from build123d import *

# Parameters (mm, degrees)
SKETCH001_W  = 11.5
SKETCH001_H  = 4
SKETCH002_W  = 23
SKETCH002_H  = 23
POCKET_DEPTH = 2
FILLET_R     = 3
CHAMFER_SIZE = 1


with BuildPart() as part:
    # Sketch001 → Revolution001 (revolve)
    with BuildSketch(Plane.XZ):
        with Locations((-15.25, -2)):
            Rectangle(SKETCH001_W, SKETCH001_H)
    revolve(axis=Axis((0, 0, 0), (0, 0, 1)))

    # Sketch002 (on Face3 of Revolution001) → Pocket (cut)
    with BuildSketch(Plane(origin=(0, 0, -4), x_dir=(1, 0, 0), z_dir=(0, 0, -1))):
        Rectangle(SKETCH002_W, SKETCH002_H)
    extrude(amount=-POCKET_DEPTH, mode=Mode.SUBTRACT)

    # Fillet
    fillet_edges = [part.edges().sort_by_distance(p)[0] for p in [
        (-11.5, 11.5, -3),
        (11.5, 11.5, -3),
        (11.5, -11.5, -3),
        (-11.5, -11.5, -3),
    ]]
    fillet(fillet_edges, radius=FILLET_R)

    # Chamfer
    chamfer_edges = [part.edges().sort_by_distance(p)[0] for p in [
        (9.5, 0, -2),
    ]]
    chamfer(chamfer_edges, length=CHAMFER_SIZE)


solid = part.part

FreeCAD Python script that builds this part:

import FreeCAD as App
import Part
import Sketcher
Q = App.Units.Quantity


def edges_at(feature, points):
    """Names of the edges that pass closest to the given points."""
    edges = feature.Shape.Edges
    near = lambda p: min(range(len(edges)), key=lambda i: edges[i].distToShape(Part.Vertex(*p))[0])
    return sorted({f"Edge{near(p) + 1}" for p in points})

doc = App.newDocument("Part")
body = doc.addObject("PartDesign::Body", "Body")

# Sketch on XZ plane
sketch1 = body.newObject("Sketcher::SketchObject", "Sketch")
sketch1.AttachmentSupport = (doc.getObject("XZ_Plane"), [""])
sketch1.MapMode = "FlatFace"
sketch1.addGeometry([
    Part.LineSegment(App.Vector(-21, 0, 0), App.Vector(-21, -4, 0)),
    Part.LineSegment(App.Vector(-21, -4, 0), App.Vector(-9.5, -4, 0)),
    Part.LineSegment(App.Vector(-9.5, -4, 0), App.Vector(-9.5, 0, 0)),
    Part.LineSegment(App.Vector(-9.5, 0, 0), App.Vector(-21, 0, 0)),
], False)
sketch1.addConstraint([
    Sketcher.Constraint("Coincident", 0, 2, 1, 1),
    Sketcher.Constraint("Coincident", 1, 2, 2, 1),
    Sketcher.Constraint("Coincident", 2, 2, 3, 1),
    Sketcher.Constraint("Coincident", 3, 2, 0, 1),
    Sketcher.Constraint("Vertical", 0),
    Sketcher.Constraint("Horizontal", 1),
    Sketcher.Constraint("Vertical", 2),
    Sketcher.Constraint("Horizontal", 3),
    Sketcher.Constraint("PointOnObject", 2, 2, -1),
    Sketcher.Constraint("DistanceY", 0, 2, 0, 1, Q("4 mm")),
    Sketcher.Constraint("DistanceX", 1, 1, 1, 2, Q("11.5 mm")),
    Sketcher.Constraint("DistanceX", 0, 2, -1, 1, Q("21 mm")),
])
revolution = body.newObject("PartDesign::Revolution", "Revolution")
revolution.Profile = sketch1
revolution.ReferenceAxis = (sketch1, ["V_Axis"])
revolution.Angle = 360

# Sketch on XY plane
sketch2 = body.newObject("Sketcher::SketchObject", "Sketch001")
sketch2.AttachmentSupport = (doc.getObject("XY_Plane"), [""])
sketch2.MapMode = "FlatFace"
sketch2.AttachmentOffset = App.Placement(App.Vector(0, 0, -4), App.Rotation())
sketch2.addGeometry([
    Part.LineSegment(App.Vector(-12, -12, 0), App.Vector(-12, 12, 0)),
    Part.LineSegment(App.Vector(-12, 12, 0), App.Vector(12, 12, 0)),
    Part.LineSegment(App.Vector(12, 12, 0), App.Vector(12, -12, 0)),
    Part.LineSegment(App.Vector(12, -12, 0), App.Vector(-12, -12, 0)),
], False)
sketch2.addConstraint([
    Sketcher.Constraint("Coincident", 0, 2, 1, 1),
    Sketcher.Constraint("Coincident", 1, 2, 2, 1),
    Sketcher.Constraint("Coincident", 2, 2, 3, 1),
    Sketcher.Constraint("Coincident", 3, 2, 0, 1),
    Sketcher.Constraint("Vertical", 0),
    Sketcher.Constraint("Horizontal", 1),
    Sketcher.Constraint("Vertical", 2),
    Sketcher.Constraint("Horizontal", 3),
    Sketcher.Constraint("Symmetric", 0, 2, 2, 2, -1, 1),
    Sketcher.Constraint("Equal", 3, 0),
    Sketcher.Constraint("DistanceX", 1, 1, 1, 2, Q("23 mm")),
])
pocket1 = body.newObject("PartDesign::Pocket", "Pocket")
pocket1.Profile = sketch2
pocket1.Length = 2
pocket1.Reversed = True
doc.recompute()

fillet = body.newObject("PartDesign::Fillet", "Fillet")
fillet.Base = (pocket1, edges_at(pocket1, [
    (-11.5, 11.5, -3),
    (11.5, 11.5, -3),
    (11.5, -11.5, -3),
    (-11.5, -11.5, -3),
]))
fillet.Radius = 3
doc.recompute()

chamfer = body.newObject("PartDesign::Chamfer", "Chamfer")
chamfer.Base = (fillet, edges_at(fillet, [(9.5, 0, -2)]))
chamfer.Size = 1

doc.recompute()
